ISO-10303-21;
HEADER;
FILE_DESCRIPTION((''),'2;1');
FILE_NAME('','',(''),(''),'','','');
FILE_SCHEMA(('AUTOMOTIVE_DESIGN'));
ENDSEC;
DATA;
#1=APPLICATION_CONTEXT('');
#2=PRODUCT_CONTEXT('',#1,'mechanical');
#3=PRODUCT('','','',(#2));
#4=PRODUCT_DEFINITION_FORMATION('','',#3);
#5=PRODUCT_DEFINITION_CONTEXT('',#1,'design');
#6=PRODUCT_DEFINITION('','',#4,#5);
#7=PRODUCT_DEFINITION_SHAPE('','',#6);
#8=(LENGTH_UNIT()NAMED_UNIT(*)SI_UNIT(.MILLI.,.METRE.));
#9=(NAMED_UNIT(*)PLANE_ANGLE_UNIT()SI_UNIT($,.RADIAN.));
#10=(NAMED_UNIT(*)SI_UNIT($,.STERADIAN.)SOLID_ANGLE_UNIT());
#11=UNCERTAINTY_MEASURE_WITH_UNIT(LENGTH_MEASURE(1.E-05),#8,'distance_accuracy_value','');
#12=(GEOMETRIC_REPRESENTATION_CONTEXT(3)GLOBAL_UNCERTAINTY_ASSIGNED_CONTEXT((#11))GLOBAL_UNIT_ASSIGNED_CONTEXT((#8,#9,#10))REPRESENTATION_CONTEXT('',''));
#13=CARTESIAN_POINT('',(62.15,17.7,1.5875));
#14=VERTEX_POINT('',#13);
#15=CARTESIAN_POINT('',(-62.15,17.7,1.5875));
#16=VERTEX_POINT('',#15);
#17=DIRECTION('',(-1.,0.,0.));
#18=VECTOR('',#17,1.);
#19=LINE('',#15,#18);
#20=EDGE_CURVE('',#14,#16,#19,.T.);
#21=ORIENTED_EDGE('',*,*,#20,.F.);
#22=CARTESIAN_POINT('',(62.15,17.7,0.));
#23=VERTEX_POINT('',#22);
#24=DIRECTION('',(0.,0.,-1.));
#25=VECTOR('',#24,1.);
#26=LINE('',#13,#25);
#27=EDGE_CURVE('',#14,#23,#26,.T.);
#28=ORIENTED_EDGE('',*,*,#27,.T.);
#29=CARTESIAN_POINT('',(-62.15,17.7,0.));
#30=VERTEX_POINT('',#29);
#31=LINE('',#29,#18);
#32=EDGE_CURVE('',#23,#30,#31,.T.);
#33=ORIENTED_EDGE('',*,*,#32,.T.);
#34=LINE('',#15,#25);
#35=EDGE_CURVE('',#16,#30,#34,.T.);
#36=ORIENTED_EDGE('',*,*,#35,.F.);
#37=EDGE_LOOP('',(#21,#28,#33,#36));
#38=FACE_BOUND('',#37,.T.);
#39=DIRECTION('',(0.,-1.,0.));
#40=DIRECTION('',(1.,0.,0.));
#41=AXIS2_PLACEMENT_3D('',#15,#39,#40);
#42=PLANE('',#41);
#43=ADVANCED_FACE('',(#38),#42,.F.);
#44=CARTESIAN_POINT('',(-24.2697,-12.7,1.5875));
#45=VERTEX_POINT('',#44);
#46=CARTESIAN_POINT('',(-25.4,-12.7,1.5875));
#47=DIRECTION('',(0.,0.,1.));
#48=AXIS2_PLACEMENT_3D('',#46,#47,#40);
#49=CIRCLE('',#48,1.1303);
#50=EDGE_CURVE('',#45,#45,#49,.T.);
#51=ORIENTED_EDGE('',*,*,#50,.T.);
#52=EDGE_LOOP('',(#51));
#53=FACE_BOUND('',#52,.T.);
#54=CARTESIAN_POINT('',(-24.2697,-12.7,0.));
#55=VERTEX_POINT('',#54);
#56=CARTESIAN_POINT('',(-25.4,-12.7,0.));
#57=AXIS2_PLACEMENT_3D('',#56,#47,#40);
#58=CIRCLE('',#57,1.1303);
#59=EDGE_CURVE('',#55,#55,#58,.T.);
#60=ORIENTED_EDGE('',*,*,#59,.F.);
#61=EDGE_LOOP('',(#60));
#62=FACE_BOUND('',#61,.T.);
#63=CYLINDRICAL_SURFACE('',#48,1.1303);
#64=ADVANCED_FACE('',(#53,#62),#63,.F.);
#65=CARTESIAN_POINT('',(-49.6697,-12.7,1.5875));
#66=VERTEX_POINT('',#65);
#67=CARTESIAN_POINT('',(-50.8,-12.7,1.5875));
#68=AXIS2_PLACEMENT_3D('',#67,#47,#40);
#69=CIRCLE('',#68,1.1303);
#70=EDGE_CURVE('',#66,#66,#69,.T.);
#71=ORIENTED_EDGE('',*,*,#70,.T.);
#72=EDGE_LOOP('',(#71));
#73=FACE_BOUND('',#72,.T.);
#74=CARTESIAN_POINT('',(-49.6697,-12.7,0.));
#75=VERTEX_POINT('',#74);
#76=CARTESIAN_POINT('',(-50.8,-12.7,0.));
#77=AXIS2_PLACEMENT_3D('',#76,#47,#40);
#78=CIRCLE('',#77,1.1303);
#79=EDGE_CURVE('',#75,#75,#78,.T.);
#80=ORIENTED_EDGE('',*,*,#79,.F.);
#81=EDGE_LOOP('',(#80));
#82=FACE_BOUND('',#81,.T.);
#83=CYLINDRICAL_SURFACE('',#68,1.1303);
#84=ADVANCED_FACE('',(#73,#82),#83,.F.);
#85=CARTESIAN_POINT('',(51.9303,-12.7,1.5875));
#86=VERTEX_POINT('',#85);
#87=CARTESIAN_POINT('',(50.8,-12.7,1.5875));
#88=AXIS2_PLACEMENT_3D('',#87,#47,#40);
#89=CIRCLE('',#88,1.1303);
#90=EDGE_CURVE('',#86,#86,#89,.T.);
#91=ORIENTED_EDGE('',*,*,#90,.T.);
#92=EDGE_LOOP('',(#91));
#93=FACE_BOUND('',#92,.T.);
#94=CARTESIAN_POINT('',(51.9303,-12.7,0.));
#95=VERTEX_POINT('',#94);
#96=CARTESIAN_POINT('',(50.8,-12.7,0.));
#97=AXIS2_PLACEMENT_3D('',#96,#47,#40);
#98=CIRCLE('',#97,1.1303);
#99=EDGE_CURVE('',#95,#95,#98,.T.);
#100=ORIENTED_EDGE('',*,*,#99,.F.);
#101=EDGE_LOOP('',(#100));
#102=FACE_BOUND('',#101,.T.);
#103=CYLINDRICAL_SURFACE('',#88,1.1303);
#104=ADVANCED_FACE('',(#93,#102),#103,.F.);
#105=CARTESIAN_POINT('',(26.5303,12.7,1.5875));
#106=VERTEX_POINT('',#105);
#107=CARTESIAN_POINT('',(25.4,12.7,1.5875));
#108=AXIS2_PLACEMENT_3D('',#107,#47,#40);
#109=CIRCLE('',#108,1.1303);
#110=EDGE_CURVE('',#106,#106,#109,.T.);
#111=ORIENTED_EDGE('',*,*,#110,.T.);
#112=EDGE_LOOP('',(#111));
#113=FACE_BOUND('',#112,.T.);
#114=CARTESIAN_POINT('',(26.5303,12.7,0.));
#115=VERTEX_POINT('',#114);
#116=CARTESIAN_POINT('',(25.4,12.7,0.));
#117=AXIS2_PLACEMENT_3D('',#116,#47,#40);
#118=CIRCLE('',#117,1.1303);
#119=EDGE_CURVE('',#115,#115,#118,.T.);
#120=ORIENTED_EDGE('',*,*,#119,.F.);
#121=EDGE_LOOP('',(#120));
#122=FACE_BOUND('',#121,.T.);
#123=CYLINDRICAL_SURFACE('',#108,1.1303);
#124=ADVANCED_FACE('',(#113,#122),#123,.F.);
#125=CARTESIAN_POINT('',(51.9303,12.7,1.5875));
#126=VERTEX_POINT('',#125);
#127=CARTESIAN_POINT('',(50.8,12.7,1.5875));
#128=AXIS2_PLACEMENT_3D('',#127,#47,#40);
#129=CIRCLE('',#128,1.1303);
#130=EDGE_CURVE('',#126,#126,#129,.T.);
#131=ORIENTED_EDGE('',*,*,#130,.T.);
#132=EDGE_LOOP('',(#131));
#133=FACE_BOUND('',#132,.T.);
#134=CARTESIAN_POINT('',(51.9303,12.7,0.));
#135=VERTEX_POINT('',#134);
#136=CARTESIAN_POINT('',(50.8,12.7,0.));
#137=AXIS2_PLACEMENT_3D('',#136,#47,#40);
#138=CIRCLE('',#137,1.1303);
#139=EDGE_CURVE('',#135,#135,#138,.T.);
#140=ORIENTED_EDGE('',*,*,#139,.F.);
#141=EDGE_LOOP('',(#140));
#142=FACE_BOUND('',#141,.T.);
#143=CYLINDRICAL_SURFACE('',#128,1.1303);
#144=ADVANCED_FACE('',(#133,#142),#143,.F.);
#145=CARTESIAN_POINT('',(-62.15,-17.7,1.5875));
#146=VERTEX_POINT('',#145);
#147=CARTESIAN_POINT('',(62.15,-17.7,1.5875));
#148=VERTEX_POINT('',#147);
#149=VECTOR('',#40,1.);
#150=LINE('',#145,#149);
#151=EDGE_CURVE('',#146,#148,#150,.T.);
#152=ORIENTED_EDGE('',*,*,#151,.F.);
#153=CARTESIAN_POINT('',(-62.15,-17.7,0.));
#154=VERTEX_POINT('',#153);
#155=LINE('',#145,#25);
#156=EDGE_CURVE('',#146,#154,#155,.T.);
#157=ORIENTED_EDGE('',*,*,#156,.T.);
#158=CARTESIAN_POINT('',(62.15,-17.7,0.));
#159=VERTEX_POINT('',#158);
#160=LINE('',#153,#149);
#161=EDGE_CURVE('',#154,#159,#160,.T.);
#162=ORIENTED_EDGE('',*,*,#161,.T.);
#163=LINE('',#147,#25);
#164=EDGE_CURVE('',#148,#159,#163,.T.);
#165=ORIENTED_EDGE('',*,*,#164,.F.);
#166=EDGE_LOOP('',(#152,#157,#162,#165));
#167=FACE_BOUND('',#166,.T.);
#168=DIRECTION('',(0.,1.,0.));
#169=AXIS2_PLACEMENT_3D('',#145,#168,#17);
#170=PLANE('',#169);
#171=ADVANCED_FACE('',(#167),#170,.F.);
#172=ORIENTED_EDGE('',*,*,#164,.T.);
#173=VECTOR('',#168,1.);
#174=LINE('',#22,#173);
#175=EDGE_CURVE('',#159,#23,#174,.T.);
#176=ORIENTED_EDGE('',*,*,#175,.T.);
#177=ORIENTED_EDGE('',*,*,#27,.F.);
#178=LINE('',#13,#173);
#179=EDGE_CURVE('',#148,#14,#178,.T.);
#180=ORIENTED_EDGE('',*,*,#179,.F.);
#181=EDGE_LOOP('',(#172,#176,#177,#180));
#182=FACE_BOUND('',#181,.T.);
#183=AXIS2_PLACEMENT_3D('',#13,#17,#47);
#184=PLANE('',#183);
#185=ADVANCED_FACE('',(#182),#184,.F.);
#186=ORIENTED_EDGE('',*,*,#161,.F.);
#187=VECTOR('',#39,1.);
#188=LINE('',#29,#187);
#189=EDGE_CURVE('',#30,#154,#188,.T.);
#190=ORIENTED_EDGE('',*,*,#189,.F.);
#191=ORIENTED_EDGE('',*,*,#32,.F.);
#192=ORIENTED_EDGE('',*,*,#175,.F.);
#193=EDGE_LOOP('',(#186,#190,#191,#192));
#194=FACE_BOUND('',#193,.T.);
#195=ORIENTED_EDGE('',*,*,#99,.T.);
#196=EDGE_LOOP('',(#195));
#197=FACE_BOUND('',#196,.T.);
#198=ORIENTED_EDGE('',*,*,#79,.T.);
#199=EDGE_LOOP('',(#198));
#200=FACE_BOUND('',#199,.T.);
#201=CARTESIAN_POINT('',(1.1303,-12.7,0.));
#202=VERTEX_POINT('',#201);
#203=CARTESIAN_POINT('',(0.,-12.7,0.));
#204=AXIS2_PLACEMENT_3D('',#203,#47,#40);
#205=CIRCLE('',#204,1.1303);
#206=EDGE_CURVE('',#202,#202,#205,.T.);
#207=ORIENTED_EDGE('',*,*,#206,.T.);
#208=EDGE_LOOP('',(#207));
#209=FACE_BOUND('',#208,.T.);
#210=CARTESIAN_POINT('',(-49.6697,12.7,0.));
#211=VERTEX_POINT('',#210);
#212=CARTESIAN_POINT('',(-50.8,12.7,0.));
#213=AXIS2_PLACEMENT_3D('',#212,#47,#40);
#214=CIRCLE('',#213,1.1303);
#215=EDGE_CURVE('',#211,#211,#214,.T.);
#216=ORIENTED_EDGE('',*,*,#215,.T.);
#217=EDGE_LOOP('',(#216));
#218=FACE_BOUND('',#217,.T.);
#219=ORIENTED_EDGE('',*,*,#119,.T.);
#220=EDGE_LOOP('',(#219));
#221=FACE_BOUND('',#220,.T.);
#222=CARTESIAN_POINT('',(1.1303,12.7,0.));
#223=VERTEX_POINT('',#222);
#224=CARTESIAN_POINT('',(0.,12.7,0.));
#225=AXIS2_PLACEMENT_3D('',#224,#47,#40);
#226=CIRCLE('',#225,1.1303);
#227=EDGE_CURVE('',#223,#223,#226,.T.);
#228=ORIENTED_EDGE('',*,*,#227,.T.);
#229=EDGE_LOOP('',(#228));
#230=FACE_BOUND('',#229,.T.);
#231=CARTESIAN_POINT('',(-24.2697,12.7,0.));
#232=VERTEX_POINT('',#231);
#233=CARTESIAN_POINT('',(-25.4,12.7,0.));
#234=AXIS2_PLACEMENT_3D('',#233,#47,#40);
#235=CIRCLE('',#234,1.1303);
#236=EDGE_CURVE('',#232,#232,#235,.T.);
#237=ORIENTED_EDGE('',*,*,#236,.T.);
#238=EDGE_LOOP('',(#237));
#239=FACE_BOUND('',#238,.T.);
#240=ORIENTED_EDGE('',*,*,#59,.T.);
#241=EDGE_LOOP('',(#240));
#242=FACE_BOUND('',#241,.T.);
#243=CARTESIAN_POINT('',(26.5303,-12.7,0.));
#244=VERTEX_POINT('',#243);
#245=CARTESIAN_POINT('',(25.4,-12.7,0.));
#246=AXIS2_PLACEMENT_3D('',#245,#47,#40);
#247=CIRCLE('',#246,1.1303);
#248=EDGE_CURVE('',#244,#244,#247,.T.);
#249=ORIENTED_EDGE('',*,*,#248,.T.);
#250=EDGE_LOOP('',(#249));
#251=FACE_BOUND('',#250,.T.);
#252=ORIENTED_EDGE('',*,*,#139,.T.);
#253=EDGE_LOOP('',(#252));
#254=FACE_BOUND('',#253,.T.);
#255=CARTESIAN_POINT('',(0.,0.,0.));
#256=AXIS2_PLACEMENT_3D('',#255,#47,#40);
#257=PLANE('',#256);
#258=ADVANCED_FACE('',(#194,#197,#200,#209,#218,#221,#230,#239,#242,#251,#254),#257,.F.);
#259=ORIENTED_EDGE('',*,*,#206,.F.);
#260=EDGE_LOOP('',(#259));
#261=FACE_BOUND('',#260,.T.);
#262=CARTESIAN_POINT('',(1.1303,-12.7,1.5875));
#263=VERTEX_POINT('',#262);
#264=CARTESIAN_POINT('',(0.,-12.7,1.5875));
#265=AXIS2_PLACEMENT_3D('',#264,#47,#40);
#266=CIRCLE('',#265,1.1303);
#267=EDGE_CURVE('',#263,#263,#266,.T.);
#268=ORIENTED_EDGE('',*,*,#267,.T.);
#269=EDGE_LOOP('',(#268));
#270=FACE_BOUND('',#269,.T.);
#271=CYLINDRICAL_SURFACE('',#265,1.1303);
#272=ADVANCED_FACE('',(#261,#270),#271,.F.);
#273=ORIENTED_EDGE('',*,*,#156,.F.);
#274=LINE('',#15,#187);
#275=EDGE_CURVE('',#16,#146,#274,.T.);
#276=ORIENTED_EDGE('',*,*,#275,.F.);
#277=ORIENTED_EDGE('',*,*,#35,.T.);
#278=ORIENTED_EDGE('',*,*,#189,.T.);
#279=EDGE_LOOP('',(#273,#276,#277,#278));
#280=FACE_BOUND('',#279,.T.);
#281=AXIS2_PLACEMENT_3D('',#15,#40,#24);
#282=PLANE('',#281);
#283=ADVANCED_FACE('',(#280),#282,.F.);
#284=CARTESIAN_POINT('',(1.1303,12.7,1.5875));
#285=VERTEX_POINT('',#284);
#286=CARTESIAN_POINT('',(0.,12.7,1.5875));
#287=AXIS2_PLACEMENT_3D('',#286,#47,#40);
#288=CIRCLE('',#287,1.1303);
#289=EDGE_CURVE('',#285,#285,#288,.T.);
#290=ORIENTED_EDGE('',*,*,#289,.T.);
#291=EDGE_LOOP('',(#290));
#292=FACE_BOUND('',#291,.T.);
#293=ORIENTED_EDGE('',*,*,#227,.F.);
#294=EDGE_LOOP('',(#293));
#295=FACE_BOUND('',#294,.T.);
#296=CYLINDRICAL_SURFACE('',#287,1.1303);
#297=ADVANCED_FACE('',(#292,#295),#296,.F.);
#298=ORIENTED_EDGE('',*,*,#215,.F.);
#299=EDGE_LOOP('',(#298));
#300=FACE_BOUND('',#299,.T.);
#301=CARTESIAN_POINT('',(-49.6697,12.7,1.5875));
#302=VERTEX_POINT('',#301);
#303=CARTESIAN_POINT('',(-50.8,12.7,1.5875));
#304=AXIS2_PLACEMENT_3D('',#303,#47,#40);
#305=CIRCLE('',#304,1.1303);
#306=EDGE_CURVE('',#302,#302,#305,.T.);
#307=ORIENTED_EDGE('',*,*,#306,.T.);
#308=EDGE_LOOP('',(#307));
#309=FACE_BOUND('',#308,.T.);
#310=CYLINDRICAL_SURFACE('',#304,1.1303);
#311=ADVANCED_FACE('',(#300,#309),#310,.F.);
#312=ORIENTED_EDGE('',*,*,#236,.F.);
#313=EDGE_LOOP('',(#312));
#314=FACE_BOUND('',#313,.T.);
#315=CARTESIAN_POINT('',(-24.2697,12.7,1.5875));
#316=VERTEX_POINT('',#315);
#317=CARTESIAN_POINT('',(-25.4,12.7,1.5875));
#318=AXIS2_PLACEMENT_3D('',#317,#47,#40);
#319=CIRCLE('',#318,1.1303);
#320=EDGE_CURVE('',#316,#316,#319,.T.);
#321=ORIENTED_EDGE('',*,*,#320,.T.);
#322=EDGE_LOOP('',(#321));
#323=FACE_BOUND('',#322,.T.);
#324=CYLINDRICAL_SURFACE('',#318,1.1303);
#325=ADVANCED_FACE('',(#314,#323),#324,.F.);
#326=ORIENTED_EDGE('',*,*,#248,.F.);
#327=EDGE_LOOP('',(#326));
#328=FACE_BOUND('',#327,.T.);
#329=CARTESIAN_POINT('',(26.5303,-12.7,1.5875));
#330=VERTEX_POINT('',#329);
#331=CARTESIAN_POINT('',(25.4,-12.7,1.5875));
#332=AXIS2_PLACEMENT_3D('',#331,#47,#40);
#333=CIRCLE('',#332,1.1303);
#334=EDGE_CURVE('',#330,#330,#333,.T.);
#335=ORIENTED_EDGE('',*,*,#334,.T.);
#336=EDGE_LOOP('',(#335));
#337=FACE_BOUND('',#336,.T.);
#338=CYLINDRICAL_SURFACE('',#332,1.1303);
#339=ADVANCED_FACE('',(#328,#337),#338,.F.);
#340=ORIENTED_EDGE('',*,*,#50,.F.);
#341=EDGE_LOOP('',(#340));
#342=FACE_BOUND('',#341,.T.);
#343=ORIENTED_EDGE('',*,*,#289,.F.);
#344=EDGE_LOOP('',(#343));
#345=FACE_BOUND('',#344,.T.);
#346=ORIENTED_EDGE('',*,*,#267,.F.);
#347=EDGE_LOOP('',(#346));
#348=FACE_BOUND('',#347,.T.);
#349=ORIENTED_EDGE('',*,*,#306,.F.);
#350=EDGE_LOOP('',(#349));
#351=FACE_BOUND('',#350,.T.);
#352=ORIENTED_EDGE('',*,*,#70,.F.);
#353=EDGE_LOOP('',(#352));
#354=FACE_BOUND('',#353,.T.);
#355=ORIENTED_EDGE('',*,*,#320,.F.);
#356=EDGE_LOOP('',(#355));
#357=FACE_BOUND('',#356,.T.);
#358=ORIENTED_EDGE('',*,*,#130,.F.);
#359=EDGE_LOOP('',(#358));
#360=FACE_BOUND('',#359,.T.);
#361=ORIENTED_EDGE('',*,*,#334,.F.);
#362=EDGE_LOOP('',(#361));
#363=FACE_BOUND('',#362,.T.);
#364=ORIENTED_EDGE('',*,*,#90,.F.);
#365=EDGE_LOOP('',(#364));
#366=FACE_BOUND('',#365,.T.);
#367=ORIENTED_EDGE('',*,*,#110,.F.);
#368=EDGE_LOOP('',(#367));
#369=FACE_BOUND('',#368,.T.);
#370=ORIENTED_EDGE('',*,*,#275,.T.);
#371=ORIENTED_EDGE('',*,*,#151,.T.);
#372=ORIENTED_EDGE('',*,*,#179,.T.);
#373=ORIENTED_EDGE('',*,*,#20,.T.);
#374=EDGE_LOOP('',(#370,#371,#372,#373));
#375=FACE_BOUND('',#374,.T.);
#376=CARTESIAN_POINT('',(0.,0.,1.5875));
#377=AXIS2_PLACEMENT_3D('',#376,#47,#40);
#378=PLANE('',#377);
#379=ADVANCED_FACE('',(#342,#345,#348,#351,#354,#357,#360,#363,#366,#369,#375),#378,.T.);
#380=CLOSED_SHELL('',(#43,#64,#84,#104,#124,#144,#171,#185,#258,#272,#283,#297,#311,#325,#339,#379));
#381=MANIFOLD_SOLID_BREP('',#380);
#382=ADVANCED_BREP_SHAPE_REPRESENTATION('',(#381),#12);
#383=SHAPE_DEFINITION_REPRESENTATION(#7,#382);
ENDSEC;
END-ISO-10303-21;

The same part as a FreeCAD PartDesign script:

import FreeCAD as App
import Part
import Sketcher
from FreeCAD import Vector

doc = App.newDocument("Part")
body = doc.addObject("PartDesign::Body", "Body")

sketch1 = body.newObject("Sketcher::SketchObject", "Sketch")
sketch1.AttachmentSupport = (doc.getObject("XY_Plane"), [""])
sketch1.MapMode = "FlatFace"
sketch1.addGeometry([
    Part.LineSegment(Vector(-62.15, 17.7, 0), Vector(-62.15, -17.7, 0)),
    Part.LineSegment(Vector(-62.15, -17.7, 0), Vector(62.15, -17.7, 0)),
    Part.LineSegment(Vector(62.15, -17.7, 0), Vector(62.15, 17.7, 0)),
    Part.LineSegment(Vector(62.15, 17.7, 0), Vector(-62.15, 17.7, 0)),
], False)
sketch1.addConstraint([
    Sketcher.Constraint("Coincident", 0, 2, 1, 1),
    Sketcher.Constraint("Coincident", 1, 2, 2, 1),
    Sketcher.Constraint("Coincident", 2, 2, 3, 1),
    Sketcher.Constraint("Coincident", 3, 2, 0, 1),
    Sketcher.Constraint("Vertical", 0),
    Sketcher.Constraint("Horizontal", 1),
    Sketcher.Constraint("Vertical", 2),
    Sketcher.Constraint("Horizontal", 3),
    Sketcher.Constraint("Symmetric", 0, 2, 2, 2, -1, 1),
    Sketcher.Constraint("DistanceX", 1, 1, 1, 2, 124.3),
    Sketcher.Constraint("DistanceY", 0, 2, 0, 1, 35.4),
])
pad1 = body.newObject("PartDesign::Pad", "Pad")
pad1.Profile = sketch1
pad1.Length = 1.5875

sketch2 = body.newObject("Sketcher::SketchObject", "Sketch001")
sketch2.AttachmentSupport = (doc.getObject("XY_Plane"), [""])
sketch2.MapMode = "FlatFace"
sketch2.AttachmentOffset = App.Placement(Vector(0, 0, 1.5875), App.Rotation())
sketch2.addGeometry([
    Part.Circle(Vector(-50.8, 12.7, 0), Vector(0, 0, 1), 1.1303),
    Part.Circle(Vector(-50.8, -12.7, 0), Vector(0, 0, 1), 1.1303),
], False)
sketch2.addConstraint([
    Sketcher.Constraint("Equal", 0, 1),
    Sketcher.Constraint("Symmetric", 0, 3, 1, 3, -1),
    Sketcher.Constraint("Diameter", 0, 2.2606),
    Sketcher.Constraint("DistanceX", 0, 3, -1, 1, 50.8),
    Sketcher.Constraint("DistanceY", -1, 1, 0, 3, 12.7),
])
doc.recompute()
hole = body.newObject("PartDesign::Hole", "Hole")
hole.Profile = sketch2
hole.ThreadType = "None"
hole.Diameter = 2.2606
hole.DepthType = "ThroughAll"
doc.recompute()

linearpattern = body.newObject("PartDesign::LinearPattern", "LinearPattern")
linearpattern.Originals = [hole]
linearpattern.Direction = (doc.getObject("X_Axis"), [""])
linearpattern.Mode = "offset"
linearpattern.Offset = 25.4
linearpattern.Occurrences = 5
body.Tip = linearpattern

doc.recompute()
